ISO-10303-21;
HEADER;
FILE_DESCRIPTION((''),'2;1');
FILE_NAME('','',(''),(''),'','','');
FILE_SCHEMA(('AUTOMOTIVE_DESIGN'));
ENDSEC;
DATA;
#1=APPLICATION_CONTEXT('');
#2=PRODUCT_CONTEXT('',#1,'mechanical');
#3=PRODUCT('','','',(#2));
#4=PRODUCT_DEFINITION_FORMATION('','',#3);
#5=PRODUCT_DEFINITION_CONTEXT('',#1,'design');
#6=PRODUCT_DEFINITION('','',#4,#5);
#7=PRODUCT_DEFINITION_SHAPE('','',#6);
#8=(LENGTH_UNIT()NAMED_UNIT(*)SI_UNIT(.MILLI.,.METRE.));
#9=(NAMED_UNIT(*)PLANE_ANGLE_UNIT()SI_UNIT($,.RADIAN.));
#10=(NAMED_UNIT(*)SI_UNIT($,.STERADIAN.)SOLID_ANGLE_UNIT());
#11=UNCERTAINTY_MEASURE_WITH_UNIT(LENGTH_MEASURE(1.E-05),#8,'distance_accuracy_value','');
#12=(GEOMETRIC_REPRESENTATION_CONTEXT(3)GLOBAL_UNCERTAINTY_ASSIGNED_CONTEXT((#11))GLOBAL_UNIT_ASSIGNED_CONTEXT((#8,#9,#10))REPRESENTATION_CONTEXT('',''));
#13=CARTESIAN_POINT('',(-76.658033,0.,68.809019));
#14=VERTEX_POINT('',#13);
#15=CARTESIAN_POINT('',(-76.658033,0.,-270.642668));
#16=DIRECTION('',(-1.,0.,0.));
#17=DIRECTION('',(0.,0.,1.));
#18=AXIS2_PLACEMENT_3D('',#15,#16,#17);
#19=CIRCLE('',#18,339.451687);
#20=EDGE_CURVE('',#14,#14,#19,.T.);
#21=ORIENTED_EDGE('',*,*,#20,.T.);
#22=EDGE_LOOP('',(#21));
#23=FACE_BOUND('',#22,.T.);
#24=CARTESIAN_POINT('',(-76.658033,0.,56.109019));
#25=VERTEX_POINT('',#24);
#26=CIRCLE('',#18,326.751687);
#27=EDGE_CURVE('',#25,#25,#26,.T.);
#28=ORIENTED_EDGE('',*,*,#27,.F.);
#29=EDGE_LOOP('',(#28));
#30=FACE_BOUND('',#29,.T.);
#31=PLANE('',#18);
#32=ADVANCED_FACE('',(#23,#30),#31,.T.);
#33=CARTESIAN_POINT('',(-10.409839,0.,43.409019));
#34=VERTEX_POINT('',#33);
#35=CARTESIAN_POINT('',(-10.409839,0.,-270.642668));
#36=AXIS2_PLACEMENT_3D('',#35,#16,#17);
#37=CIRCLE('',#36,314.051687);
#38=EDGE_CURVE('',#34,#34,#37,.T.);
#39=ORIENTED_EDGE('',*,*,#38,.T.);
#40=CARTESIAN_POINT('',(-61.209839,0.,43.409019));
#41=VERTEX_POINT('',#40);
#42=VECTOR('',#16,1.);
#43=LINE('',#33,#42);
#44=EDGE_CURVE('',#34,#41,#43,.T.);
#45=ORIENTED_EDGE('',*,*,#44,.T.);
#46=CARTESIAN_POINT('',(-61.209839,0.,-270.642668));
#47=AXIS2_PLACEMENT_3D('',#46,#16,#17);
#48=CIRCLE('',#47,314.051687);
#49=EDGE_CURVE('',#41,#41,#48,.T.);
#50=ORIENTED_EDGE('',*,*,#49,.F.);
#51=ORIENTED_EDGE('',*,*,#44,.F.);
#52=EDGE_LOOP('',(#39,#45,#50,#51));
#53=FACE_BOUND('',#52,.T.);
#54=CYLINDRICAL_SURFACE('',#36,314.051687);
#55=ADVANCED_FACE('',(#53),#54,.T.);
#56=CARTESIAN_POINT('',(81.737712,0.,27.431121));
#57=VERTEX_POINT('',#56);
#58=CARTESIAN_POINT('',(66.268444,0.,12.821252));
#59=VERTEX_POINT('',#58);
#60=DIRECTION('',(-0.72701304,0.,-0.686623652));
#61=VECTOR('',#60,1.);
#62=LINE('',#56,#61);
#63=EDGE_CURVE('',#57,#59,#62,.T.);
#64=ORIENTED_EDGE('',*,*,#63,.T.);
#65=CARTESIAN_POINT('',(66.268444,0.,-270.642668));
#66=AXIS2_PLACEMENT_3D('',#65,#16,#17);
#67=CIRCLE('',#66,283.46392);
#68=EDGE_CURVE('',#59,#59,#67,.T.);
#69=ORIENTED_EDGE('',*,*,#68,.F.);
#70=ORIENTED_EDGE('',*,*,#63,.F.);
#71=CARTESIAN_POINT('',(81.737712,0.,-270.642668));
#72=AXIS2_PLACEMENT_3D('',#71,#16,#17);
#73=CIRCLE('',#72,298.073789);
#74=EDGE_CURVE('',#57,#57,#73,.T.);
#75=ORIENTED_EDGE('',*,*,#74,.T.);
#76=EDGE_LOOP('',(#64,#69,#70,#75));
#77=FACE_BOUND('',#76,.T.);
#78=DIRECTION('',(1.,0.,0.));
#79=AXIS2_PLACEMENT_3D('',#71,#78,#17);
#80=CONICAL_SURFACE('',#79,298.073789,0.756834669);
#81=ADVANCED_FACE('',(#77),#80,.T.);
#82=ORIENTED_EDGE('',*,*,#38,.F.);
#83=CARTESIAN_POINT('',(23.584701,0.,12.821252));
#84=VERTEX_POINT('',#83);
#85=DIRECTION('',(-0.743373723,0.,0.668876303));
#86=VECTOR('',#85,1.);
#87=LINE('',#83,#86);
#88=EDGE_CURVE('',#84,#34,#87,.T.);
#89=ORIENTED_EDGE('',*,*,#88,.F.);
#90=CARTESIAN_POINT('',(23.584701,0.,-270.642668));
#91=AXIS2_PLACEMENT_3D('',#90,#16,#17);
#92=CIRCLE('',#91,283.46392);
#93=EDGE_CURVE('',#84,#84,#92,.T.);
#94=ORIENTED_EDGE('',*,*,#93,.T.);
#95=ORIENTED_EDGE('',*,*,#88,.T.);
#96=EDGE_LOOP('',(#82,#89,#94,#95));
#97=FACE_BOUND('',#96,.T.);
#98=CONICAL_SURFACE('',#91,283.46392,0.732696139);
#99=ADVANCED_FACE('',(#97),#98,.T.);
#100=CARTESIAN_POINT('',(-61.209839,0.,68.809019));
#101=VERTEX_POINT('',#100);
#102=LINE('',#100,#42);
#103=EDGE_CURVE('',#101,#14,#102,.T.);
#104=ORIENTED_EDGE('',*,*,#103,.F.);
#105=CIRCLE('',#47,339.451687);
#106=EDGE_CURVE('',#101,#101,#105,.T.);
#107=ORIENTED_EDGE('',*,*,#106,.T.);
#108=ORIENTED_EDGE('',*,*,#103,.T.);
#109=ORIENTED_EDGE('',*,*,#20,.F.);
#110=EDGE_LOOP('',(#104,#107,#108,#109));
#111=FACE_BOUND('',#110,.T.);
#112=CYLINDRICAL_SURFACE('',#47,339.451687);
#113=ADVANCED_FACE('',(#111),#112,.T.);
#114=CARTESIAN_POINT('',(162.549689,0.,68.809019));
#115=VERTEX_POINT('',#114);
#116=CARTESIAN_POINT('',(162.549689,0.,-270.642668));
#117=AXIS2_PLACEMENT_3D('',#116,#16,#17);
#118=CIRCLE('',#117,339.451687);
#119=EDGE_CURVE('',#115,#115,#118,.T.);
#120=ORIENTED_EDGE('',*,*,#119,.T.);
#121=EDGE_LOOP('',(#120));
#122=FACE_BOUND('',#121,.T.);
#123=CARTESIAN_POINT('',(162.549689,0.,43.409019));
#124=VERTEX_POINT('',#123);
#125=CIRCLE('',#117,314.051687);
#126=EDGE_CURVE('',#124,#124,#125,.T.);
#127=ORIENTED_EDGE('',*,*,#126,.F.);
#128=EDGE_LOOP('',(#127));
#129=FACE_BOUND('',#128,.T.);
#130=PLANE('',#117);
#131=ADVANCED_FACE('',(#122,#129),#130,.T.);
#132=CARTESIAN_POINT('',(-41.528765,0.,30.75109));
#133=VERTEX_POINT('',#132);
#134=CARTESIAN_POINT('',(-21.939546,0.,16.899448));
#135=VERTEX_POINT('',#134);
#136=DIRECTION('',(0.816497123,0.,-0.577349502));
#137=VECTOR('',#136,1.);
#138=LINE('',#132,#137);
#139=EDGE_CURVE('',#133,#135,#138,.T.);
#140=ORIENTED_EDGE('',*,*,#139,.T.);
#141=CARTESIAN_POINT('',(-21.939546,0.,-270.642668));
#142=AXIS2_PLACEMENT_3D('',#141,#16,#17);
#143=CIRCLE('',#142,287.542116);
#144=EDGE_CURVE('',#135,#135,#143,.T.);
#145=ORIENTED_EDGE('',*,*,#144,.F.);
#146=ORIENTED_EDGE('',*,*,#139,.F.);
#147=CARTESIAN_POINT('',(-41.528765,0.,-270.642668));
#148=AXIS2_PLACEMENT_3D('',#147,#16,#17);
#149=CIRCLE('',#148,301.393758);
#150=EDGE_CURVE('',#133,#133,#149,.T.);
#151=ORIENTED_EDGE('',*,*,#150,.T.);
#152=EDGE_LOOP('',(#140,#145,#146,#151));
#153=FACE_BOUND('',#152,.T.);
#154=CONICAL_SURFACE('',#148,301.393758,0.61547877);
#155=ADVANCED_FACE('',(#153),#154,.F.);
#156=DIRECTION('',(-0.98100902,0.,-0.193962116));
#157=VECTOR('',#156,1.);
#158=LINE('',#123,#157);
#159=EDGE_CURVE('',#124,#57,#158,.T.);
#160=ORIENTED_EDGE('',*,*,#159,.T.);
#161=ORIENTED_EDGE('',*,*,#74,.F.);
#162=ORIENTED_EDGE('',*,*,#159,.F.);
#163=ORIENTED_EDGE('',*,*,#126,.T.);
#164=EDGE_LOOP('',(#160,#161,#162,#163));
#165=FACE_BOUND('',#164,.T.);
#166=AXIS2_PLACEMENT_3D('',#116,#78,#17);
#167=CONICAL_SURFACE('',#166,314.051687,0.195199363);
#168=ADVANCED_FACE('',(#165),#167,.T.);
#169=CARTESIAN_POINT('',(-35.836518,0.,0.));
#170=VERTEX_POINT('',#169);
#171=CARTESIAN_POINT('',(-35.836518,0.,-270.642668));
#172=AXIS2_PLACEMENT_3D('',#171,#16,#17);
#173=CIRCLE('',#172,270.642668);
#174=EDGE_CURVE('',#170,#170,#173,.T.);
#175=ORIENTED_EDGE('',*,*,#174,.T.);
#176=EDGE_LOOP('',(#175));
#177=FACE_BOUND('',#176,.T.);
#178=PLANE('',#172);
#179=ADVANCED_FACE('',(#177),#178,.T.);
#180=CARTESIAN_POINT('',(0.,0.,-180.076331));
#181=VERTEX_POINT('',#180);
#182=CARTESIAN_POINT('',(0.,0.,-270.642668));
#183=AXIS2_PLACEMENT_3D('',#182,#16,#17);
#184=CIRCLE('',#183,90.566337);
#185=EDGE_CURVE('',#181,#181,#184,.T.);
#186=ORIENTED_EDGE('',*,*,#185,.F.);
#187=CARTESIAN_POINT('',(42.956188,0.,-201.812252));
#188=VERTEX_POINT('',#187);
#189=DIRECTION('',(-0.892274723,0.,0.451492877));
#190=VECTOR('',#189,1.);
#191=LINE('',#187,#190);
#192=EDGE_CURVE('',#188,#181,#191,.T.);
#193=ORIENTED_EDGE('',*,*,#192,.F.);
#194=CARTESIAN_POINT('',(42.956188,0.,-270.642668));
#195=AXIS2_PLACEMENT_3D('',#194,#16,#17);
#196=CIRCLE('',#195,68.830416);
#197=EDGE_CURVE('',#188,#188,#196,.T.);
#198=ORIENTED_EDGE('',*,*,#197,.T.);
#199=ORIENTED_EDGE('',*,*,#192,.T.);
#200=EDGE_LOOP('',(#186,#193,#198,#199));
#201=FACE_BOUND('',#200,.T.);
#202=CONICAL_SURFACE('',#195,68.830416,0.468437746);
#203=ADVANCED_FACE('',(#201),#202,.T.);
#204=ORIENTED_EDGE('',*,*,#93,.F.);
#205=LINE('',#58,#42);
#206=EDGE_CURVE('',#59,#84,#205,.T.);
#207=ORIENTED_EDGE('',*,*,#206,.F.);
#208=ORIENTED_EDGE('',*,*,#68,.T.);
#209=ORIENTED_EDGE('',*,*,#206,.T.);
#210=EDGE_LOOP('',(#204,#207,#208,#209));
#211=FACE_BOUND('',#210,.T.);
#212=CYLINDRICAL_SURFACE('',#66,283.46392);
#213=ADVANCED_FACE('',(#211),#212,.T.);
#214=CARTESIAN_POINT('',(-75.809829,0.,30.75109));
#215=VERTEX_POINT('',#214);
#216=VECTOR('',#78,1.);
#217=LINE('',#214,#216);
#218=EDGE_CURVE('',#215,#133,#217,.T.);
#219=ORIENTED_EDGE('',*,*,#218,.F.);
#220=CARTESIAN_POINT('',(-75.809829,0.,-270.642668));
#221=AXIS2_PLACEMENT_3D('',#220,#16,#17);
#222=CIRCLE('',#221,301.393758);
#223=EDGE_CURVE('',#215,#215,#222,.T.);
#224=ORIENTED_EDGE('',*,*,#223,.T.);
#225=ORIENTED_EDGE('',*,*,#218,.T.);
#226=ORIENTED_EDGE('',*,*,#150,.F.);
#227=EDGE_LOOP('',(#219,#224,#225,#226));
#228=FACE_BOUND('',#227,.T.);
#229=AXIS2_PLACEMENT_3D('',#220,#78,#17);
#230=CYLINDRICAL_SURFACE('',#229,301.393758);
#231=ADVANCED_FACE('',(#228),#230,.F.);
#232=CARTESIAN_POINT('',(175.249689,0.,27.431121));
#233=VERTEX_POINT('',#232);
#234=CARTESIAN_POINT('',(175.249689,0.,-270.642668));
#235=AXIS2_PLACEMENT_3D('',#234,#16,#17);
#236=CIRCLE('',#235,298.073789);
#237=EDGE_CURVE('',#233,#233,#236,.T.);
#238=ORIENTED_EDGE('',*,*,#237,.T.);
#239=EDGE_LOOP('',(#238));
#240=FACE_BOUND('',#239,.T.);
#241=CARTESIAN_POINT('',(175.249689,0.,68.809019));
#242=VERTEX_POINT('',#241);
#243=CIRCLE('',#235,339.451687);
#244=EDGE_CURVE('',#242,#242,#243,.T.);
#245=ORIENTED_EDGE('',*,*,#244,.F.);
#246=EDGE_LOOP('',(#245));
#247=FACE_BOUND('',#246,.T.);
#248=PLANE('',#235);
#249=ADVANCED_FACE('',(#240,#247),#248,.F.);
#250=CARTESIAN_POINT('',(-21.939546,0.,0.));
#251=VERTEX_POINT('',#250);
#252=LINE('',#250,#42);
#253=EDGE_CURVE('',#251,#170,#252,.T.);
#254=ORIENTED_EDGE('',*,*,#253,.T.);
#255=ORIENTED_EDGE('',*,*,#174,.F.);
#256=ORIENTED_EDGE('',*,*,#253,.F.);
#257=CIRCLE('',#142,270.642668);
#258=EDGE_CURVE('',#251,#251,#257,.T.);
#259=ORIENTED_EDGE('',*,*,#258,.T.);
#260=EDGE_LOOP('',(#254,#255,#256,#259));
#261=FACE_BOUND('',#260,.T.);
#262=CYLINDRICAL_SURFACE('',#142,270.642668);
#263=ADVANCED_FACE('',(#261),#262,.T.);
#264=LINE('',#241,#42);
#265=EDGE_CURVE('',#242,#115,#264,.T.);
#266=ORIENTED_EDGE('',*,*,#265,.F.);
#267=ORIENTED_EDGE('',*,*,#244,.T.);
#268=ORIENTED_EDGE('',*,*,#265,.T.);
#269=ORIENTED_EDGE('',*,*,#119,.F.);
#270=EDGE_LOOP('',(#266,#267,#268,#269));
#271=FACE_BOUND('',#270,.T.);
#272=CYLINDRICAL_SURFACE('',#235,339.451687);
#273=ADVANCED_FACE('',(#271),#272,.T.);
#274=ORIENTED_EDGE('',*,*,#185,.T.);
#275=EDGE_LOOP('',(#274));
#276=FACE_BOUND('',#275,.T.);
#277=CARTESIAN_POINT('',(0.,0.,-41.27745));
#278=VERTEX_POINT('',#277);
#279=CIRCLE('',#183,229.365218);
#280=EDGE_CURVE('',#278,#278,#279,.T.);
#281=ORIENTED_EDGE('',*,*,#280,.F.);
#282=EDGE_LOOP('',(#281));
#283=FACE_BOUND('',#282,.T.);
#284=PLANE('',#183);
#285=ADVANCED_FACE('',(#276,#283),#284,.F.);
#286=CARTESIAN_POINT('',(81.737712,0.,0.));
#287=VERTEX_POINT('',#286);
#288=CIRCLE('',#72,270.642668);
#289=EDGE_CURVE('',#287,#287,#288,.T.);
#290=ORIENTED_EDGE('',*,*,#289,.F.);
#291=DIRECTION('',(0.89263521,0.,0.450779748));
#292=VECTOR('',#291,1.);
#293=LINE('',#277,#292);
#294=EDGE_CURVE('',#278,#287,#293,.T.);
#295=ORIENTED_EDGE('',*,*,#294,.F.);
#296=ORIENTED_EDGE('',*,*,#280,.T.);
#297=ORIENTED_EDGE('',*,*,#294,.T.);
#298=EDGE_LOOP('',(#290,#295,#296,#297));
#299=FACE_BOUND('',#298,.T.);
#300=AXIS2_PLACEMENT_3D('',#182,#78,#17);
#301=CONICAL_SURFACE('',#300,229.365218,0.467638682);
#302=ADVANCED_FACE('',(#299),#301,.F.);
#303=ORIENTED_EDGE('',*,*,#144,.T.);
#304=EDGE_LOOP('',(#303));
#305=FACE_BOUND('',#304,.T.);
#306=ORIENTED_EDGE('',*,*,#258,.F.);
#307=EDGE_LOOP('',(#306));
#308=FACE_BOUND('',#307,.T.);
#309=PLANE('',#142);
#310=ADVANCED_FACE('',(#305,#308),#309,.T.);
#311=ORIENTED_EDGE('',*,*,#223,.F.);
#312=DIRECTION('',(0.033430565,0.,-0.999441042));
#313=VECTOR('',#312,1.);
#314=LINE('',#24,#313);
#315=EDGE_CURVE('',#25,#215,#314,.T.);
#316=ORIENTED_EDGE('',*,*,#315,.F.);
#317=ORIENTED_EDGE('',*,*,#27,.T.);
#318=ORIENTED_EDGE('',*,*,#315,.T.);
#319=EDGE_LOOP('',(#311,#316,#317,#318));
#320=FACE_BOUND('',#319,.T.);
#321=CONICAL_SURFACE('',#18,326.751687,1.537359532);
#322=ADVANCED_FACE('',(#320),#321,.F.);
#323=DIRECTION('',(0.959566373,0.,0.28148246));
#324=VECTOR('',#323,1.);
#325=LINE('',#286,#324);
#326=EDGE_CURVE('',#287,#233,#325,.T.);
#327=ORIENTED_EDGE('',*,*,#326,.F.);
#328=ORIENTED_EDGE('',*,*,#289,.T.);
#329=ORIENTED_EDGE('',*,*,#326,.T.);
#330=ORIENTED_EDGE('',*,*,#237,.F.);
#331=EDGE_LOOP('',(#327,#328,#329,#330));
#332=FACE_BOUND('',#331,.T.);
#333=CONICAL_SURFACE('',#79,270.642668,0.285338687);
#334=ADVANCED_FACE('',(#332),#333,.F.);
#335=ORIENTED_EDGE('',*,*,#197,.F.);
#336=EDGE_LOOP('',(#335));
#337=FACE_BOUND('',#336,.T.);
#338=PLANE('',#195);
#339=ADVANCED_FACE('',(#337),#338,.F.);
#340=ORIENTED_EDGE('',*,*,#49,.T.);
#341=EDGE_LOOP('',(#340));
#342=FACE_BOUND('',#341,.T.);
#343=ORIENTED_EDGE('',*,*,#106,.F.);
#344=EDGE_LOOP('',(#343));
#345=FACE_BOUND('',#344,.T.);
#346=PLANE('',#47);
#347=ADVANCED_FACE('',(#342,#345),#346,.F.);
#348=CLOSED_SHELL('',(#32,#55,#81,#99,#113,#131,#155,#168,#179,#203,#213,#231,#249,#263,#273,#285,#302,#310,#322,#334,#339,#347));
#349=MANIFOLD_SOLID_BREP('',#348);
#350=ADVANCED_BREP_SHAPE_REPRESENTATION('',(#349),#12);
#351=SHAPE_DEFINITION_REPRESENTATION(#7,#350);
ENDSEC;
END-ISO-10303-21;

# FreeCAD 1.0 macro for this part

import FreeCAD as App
import Part
import Sketcher
Q = App.Units.Quantity


def add_polygon(sketch, points):
    """Adds a closed chain of lines whose ends are joined by coincident constraints."""
    first, n = sketch.GeometryCount, len(points)
    for a, b in zip(points, points[1:] + points[:1]):
        sketch.addGeometry(Part.LineSegment(App.Vector(*a, 0), App.Vector(*b, 0)), False)
    for i in range(n):
        sketch.addConstraint(Sketcher.Constraint("Coincident", first + i, 2, first + (i + 1) % n, 1))

doc = App.newDocument("Part")
params = doc.addObject("Spreadsheet::Sheet", "Params")
for row, (alias, value) in enumerate([
    ("sketch1_width", "2 in"),
    ("sketch1_height", "1 in"),
    ("sketch1_width2", "0.5 in"),
    ("revolution_angle", "360 deg"),
], start=1):
    params.set(f"A{row}", alias)
    params.set(f"B{row}", "=" + value)
    params.setAlias(f"B{row}", alias)

body = doc.addObject("PartDesign::Body", "Body")

# Sketch on XZ plane
sketch1 = body.newObject("Sketcher::SketchObject", "Sketch")
sketch1.AttachmentSupport = (doc.getObject("XZ_Plane"), [""])
sketch1.MapMode = "FlatFace"
add_polygon(sketch1, [(-76.658033, 68.809019), (-76.658033, 56.109019), (-75.809829, 30.75109), (-41.528765, 30.75109), (-21.939546, 16.899448), (-21.939546, 0), (-35.836518, 0), (-35.836518, -270.642668), (42.956188, -270.642668), (42.956188, -201.812252), (0, -180.076331), (0, -41.27745), (81.737712, 0), (175.249689, 27.431121), (175.249689, 68.809019), (162.549689, 68.809019), (162.549689, 43.409019), (81.737712, 27.431121), (66.268444, 12.821252), (23.584701, 12.821252), (-10.409839, 43.409019), (-61.209839, 43.409019), (-61.209839, 68.809019)])  # lines 0-22
sketch1.addGeometry(Part.LineSegment(App.Vector(175.249689, -270.642668, 0), App.Vector(-76.658033, -270.642668, 0)), True)  # axis
sketch1.addConstraint(Sketcher.Constraint("Vertical", 0))
sketch1.addConstraint(Sketcher.Constraint("Horizontal", 2))
sketch1.addConstraint(Sketcher.Constraint("Vertical", 4))
sketch1.addConstraint(Sketcher.Constraint("Horizontal", 5))
sketch1.addConstraint(Sketcher.Constraint("Vertical", 6))
sketch1.addConstraint(Sketcher.Constraint("Horizontal", 7))
sketch1.addConstraint(Sketcher.Constraint("Vertical", 8))
sketch1.addConstraint(Sketcher.Constraint("Vertical", 10))
sketch1.addConstraint(Sketcher.Constraint("Vertical", 13))
sketch1.addConstraint(Sketcher.Constraint("Horizontal", 14))
sketch1.addConstraint(Sketcher.Constraint("Vertical", 15))
sketch1.addConstraint(Sketcher.Constraint("Horizontal", 18))
sketch1.addConstraint(Sketcher.Constraint("Horizontal", 20))
sketch1.addConstraint(Sketcher.Constraint("Vertical", 21))
sketch1.addConstraint(Sketcher.Constraint("Horizontal", 22))
sketch1.addConstraint(Sketcher.Constraint("Horizontal", 23))
sketch1.addConstraint(Sketcher.Constraint("PointOnObject", 4, 2, -1))
sketch1.addConstraint(Sketcher.Constraint("PointOnObject", 9, 2, -2))
sketch1.addConstraint(Sketcher.Constraint("PointOnObject", 11, 2, -1))
sketch1.addConstraint(Sketcher.Constraint("Horizontal", 12, 2, 16, 2))
sketch1.addConstraint(Sketcher.Constraint("Horizontal", 15, 2, 19, 2))
sketch1.addConstraint(Sketcher.Constraint("Horizontal", 14, 2, 21, 2))
sketch1.addConstraint(Sketcher.Constraint("Horizontal", 7, 2, 23, 1))
sketch1.addConstraint(Sketcher.Constraint("Vertical", 11, 2, 16, 2))
sketch1.addConstraint(Sketcher.Constraint("Vertical", 13, 2, 23, 1))
sketch1.addConstraint(Sketcher.Constraint("Vertical", 22, 2, 23, 2))
sketch1.addConstraint(Sketcher.Constraint("Equal", 14, 0))
sketch1.addConstraint(Sketcher.Constraint("DistanceX", 20, 2, 20, 1, Q("2 in")))
sketch1.addConstraint(Sketcher.Constraint("DistanceY", 15, 2, 15, 1, Q("1 in")))
sketch1.addConstraint(Sketcher.Constraint("DistanceX", 14, 2, 14, 1, Q("0.5 in")))
sketch1.addConstraint(Sketcher.Constraint("DistanceY", 13, 1, 13, 2, 41.377898))
sketch1.addConstraint(Sketcher.Constraint("Distance", 11, 91.568998))
sketch1.addConstraint(Sketcher.Constraint("DistanceX", 5, 2, 5, 1, 13.896972))
sketch1.addConstraint(Sketcher.Constraint("DistanceX", 23, 2, 23, 1, 251.907722))
sketch1.addConstraint(Sketcher.Constraint("DistanceY", 6, 2, 6, 1, 270.642668))
sketch1.addConstraint(Sketcher.Constraint("DistanceY", 10, 1, 10, 2, 138.798881))
sketch1.addConstraint(Sketcher.Constraint("DistanceX", -1, 1, 18, 2, 23.584701))
sketch1.addConstraint(Sketcher.Constraint("DistanceY", 8, 2, 3, 2, 218.7117))
sketch1.addConstraint(Sketcher.Constraint("DistanceX", 7, 2, 23, 1, 132.293501))
sketch1.addConstraint(Sketcher.Constraint("Distance", 1, 25.372111))
sketch1.addConstraint(Sketcher.Constraint("Distance", 3, 23.99178))
sketch1.addConstraint(Sketcher.Constraint("Distance", 12, 97.452328))
sketch1.addConstraint(Sketcher.Constraint("Distance", 17, 21.277841))
sketch1.addConstraint(Sketcher.Constraint("Distance", 19, 45.73008))
sketch1.addConstraint(Sketcher.Constraint("DistanceX", 2, 1, 2, 2, 34.281064))
sketch1.addConstraint(Sketcher.Constraint("DistanceX", 7, 1, 7, 2, 78.792706))
sketch1.addConstraint(Sketcher.Constraint("DistanceX", 18, 2, 18, 1, 42.683743))
sketch1.addConstraint(Sketcher.Constraint("DistanceX", 22, 2, 22, 1, 15.448194))
sketch1.addConstraint(Sketcher.Constraint("DistanceY", 4, 2, 4, 1, 16.899448))
sketch1.addConstraint(Sketcher.Constraint("DistanceY", -1, 1, 0, 2, 56.109019))
sketch1.setExpression("Constraints[50]", "Params.sketch1_width")
sketch1.setExpression("Constraints[51]", "Params.sketch1_height")
sketch1.setExpression("Constraints[52]", "Params.sketch1_width2")
revolution = body.newObject("PartDesign::Revolution", "Revolution")
revolution.Profile = sketch1
revolution.ReferenceAxis = (sketch1, ["Axis0"])
revolution.setExpression("Angle", "Params.revolution_angle")

doc.recompute()
